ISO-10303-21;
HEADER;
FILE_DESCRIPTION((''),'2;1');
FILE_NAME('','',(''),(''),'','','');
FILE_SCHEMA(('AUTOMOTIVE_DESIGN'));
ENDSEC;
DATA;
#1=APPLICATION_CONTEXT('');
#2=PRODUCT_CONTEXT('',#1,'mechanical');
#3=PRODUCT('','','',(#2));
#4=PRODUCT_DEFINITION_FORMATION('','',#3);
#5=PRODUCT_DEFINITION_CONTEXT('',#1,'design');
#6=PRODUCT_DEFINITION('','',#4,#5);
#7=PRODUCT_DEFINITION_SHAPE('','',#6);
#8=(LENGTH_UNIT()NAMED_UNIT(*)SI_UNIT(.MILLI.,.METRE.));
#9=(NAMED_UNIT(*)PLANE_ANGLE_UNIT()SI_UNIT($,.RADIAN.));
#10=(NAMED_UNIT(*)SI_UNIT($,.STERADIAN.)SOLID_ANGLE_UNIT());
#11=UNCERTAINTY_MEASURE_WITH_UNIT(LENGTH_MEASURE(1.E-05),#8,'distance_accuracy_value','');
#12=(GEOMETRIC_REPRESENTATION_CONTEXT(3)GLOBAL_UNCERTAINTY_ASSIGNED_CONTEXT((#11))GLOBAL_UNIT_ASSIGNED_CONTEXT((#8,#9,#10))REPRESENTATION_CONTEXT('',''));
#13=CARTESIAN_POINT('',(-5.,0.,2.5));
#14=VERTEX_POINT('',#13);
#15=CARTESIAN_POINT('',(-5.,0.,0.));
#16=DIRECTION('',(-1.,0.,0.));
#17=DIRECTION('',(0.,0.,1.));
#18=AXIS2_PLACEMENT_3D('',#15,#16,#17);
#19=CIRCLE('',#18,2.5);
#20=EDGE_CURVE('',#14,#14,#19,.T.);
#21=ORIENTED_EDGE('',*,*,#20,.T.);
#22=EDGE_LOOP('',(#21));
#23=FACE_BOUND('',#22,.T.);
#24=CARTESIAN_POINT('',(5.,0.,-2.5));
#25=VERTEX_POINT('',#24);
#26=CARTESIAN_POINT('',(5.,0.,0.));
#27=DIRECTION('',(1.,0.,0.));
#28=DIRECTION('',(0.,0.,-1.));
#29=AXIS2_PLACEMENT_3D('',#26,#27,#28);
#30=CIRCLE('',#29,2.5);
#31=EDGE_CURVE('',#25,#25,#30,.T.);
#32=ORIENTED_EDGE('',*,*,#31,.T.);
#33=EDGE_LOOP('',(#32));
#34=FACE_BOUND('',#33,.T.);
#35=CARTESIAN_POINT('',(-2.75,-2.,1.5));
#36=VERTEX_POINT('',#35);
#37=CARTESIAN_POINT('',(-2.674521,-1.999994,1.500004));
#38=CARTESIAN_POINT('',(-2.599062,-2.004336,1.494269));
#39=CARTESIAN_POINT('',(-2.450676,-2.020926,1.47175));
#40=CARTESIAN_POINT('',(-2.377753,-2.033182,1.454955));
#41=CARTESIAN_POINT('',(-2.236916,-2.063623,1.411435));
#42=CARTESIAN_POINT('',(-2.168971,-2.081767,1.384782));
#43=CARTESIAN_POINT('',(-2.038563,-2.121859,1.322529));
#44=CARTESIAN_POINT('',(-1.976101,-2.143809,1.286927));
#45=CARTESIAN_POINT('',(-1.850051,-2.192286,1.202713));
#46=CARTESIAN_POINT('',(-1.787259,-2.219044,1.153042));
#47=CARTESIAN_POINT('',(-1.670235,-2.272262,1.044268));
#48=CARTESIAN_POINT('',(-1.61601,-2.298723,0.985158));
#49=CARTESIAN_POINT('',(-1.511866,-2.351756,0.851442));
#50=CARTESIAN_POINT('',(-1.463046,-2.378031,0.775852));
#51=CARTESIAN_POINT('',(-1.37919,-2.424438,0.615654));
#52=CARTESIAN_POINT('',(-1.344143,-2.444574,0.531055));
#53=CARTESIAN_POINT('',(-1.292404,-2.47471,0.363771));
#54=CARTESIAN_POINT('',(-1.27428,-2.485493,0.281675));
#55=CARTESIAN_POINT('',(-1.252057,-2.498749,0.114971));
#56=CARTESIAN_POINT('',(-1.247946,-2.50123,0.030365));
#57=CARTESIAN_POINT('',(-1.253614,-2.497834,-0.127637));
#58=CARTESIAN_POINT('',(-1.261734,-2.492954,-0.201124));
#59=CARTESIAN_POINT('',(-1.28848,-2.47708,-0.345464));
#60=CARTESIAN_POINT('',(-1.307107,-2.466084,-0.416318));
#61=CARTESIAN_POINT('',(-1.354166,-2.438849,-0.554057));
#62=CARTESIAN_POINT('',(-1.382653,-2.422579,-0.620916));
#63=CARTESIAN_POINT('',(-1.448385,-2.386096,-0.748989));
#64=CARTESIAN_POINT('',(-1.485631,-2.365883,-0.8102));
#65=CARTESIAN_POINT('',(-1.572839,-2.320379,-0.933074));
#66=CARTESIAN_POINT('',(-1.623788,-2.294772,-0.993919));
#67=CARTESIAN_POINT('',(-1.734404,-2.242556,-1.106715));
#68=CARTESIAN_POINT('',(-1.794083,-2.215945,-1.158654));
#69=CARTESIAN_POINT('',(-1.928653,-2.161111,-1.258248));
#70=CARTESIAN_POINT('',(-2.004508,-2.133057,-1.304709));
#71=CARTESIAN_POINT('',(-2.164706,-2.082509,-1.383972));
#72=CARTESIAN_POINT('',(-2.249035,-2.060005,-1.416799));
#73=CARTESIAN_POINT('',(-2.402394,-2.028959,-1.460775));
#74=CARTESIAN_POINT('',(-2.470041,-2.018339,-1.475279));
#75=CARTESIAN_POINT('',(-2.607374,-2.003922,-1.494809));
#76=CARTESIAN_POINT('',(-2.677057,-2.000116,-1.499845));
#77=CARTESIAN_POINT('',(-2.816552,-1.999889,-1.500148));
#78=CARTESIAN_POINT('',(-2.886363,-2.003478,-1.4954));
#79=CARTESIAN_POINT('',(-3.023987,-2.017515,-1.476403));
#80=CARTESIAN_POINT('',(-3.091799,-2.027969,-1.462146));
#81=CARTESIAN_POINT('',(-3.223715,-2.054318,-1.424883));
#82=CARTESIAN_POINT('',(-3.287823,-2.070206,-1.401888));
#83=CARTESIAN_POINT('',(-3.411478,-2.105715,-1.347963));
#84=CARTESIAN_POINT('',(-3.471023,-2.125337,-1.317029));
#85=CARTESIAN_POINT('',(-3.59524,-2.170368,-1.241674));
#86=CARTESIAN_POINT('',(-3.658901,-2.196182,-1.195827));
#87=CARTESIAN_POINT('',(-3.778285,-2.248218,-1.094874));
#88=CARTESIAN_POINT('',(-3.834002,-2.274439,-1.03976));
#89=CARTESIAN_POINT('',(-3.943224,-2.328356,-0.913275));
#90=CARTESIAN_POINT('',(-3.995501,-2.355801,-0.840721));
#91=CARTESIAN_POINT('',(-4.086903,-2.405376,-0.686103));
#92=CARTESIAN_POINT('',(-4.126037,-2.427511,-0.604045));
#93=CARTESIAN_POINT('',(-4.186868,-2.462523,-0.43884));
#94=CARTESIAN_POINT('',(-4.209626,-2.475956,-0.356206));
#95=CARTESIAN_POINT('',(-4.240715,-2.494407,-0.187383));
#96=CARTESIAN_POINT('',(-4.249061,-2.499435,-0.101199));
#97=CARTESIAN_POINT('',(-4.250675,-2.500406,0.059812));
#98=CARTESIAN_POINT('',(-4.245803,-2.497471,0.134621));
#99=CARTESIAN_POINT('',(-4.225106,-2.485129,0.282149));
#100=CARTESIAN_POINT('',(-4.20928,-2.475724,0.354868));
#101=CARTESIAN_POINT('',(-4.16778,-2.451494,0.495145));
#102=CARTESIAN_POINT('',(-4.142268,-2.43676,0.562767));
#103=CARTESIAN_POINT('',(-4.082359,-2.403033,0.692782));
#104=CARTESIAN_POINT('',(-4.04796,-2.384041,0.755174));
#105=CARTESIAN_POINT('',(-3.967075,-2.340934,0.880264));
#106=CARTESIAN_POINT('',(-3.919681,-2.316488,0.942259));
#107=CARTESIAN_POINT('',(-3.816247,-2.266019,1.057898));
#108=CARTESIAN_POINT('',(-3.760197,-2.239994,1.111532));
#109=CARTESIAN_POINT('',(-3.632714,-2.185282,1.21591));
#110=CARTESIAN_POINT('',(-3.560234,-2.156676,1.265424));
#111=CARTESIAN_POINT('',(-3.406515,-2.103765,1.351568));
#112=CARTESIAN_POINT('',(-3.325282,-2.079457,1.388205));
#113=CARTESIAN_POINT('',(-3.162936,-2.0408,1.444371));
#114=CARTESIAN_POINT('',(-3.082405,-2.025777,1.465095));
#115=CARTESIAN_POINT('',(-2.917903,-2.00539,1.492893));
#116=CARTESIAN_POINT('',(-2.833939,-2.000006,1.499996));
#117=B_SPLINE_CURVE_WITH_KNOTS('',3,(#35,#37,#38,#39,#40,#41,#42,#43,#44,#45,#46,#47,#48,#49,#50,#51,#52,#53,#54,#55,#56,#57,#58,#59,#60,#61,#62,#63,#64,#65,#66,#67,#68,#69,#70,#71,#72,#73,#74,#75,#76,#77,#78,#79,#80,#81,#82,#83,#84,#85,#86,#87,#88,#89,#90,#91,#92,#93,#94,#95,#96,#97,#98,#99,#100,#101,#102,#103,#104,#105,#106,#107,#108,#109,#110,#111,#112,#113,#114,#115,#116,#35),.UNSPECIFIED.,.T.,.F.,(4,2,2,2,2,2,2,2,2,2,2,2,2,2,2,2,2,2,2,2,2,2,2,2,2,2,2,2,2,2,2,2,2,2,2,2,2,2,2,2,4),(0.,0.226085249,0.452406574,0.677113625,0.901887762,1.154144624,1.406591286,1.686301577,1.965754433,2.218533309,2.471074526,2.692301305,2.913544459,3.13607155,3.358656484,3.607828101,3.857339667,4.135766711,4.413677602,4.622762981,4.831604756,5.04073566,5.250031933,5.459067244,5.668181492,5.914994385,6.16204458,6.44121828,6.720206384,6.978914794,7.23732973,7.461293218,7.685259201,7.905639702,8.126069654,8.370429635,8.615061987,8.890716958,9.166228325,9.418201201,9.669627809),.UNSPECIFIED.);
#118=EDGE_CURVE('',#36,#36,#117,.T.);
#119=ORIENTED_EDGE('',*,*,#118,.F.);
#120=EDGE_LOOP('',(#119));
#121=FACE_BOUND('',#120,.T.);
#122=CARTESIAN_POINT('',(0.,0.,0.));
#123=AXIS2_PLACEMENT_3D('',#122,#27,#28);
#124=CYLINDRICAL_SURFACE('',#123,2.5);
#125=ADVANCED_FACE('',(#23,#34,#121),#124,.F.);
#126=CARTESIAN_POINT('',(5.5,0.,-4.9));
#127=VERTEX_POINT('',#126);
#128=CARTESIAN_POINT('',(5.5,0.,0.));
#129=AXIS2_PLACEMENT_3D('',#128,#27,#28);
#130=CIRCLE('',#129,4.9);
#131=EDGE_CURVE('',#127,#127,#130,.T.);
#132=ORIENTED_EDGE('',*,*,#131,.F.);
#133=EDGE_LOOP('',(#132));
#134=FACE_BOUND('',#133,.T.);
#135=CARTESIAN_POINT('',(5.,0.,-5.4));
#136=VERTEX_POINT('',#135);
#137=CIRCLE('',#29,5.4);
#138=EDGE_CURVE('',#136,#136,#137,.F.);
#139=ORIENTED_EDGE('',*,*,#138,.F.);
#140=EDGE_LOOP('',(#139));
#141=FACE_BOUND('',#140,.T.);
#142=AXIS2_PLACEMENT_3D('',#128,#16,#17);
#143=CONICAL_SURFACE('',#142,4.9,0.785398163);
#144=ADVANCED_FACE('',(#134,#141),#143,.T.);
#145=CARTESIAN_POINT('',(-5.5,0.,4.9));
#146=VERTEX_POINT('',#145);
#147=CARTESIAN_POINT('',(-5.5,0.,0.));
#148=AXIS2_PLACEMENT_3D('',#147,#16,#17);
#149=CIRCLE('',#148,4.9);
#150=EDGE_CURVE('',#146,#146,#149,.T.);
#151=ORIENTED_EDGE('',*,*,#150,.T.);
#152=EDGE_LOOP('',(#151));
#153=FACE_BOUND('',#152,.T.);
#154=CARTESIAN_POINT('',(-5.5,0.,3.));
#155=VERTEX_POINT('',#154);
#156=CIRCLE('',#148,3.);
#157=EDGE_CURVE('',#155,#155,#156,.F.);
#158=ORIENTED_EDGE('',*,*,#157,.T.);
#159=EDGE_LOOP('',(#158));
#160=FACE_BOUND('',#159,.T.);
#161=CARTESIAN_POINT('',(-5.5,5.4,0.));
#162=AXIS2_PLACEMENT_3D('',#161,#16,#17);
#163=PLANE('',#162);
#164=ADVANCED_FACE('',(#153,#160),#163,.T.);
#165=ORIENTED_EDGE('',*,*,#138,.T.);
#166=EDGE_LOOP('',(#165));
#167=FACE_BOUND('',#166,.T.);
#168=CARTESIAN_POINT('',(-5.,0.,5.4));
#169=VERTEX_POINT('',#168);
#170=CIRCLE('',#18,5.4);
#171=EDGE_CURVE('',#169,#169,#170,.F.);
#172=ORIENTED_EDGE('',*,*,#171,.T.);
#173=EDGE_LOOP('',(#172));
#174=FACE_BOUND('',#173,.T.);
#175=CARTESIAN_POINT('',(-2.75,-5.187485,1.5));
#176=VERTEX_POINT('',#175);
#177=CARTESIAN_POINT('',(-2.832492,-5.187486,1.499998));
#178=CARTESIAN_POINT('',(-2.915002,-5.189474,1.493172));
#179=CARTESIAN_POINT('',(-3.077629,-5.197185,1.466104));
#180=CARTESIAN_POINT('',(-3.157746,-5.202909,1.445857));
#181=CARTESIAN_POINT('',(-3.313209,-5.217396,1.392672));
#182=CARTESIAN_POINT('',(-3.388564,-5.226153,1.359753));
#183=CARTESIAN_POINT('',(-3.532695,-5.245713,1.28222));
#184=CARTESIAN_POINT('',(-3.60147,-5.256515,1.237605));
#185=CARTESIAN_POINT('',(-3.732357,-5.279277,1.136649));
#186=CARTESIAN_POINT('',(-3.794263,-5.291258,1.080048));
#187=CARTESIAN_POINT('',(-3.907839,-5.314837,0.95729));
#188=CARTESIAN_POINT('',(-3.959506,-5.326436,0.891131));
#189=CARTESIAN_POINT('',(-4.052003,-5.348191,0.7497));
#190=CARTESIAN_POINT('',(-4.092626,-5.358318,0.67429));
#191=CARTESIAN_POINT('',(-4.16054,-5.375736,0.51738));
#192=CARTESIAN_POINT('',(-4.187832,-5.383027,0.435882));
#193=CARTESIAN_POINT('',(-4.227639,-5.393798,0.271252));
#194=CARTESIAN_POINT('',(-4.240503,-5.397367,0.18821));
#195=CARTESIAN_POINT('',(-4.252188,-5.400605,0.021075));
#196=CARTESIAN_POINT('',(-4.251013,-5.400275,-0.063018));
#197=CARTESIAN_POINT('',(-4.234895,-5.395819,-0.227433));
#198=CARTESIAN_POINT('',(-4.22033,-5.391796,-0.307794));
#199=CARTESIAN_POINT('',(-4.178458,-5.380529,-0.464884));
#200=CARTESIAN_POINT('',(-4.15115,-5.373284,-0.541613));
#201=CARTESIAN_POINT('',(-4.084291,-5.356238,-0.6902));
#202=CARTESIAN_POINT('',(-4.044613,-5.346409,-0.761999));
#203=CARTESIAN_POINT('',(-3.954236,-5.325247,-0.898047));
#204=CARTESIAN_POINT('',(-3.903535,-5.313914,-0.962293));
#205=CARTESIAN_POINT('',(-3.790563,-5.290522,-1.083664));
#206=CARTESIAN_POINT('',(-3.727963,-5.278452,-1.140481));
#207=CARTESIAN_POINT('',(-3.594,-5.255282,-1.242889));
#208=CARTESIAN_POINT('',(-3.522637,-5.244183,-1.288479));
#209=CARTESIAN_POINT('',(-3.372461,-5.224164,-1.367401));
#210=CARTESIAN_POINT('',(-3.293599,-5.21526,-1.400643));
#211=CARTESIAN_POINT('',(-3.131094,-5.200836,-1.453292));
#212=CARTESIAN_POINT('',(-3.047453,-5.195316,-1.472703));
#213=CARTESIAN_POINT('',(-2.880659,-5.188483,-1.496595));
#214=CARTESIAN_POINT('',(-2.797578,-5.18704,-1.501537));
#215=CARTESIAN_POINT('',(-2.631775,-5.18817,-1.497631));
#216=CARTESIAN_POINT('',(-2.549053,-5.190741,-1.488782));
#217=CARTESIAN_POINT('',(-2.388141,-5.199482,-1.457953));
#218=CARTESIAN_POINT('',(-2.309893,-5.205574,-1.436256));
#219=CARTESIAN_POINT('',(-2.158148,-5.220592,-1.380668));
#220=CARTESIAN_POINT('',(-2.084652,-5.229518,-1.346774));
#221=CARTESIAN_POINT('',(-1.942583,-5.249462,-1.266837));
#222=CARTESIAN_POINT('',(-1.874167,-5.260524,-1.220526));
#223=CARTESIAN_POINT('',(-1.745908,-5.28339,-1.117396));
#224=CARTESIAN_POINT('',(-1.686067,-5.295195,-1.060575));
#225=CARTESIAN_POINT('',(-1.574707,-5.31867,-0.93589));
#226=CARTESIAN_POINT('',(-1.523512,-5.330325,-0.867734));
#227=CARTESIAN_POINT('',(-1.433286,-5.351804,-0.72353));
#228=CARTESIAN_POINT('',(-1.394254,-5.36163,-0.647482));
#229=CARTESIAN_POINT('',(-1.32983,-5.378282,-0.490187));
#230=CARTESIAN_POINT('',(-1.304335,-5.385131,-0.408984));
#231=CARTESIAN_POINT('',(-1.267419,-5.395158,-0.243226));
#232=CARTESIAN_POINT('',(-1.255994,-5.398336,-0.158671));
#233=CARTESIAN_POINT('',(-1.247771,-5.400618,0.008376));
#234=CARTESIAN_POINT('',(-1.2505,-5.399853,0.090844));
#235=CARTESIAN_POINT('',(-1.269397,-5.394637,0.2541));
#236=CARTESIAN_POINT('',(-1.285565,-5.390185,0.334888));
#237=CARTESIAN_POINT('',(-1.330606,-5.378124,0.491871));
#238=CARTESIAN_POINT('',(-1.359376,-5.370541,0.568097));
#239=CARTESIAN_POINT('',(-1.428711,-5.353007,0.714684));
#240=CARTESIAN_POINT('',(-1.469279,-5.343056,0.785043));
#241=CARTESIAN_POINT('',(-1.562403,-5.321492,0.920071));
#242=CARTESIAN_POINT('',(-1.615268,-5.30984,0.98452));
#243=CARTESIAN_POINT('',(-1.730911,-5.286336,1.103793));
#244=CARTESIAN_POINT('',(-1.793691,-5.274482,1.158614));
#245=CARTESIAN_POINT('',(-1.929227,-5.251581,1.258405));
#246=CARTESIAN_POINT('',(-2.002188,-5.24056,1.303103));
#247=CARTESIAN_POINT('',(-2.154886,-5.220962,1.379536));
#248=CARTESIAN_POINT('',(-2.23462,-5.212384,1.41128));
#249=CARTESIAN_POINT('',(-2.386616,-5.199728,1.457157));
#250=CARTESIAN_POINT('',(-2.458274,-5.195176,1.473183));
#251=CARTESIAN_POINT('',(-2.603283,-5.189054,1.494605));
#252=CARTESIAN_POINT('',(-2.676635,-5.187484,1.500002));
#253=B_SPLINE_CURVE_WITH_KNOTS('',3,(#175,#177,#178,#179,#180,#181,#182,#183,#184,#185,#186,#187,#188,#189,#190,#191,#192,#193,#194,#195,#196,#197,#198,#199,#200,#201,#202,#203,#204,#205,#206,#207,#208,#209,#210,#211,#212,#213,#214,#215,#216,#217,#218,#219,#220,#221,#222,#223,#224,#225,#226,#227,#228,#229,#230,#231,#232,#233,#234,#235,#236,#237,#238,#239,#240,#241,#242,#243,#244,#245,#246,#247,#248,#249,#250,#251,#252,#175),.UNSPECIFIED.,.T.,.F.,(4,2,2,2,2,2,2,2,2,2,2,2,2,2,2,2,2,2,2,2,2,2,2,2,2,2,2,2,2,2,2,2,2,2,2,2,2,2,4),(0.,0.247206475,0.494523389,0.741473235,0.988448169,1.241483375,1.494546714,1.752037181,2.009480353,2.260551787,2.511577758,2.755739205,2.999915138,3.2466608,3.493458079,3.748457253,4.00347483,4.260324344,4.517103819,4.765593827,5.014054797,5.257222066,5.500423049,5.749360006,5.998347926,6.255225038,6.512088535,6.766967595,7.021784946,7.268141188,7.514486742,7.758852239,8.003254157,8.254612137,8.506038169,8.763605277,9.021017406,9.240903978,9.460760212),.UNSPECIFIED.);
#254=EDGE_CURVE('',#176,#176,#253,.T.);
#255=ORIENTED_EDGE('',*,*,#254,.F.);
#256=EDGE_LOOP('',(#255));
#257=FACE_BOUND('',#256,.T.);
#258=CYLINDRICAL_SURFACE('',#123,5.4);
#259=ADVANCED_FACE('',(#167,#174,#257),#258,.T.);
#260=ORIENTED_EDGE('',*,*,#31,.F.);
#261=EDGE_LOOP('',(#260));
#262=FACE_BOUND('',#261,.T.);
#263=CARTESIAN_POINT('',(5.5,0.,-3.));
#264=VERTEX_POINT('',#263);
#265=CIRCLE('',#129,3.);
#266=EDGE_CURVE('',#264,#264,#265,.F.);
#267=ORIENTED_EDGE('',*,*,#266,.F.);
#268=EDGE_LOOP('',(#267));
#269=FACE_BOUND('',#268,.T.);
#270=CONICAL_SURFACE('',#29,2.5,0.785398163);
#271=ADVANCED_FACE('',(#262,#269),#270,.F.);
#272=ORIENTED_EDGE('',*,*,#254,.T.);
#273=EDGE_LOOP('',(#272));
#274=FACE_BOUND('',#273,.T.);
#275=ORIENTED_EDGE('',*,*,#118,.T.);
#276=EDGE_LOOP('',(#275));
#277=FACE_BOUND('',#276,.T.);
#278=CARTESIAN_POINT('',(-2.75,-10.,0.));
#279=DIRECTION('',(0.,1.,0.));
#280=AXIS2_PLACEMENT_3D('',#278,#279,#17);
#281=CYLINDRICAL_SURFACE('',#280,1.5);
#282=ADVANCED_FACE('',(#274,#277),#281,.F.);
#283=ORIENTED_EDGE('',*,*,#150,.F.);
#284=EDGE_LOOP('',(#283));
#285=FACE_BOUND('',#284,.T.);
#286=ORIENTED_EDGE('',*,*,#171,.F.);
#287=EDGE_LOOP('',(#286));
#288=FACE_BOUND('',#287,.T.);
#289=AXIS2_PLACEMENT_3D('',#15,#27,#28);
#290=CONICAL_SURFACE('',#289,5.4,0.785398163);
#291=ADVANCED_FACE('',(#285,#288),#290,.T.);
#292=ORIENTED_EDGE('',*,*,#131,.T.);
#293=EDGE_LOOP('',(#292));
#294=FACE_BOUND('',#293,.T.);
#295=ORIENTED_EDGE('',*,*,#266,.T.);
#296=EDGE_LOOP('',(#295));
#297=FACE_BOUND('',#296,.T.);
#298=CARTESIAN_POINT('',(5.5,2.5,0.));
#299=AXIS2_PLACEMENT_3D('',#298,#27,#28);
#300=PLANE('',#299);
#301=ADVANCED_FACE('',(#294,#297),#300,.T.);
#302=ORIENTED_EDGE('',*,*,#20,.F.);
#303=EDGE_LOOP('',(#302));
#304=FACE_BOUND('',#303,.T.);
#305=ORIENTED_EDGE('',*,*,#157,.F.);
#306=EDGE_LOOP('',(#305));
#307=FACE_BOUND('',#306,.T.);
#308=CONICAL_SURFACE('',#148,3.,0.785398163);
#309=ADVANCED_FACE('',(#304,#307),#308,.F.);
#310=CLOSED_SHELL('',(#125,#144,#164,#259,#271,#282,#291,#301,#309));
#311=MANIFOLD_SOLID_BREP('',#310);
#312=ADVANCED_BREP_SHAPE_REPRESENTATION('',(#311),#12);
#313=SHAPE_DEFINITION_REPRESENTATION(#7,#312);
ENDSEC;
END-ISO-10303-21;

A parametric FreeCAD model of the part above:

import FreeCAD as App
import Part
import Sketcher

V = App.Vector


def edges_at(feature, points):
    """Names of the edges that pass closest to the given points."""
    edges = feature.Shape.Edges
    near = lambda p: min(range(len(edges)), key=lambda i: edges[i].distToShape(Part.Vertex(*p))[0])
    return sorted({f"Edge{near(p) + 1}" for p in points})

doc = App.newDocument("Part")
params = doc.addObject("Spreadsheet::Sheet", "Params")
for row, (alias, value) in enumerate([
    ("sketch1_width", "11 mm"),
    ("sketch1_height", "2.9 mm"),
    ("revolution_angle", "360 deg"),
    ("sketch2_diameter", "3 mm"),
    ("pocket1_length", "10 mm"),
    ("chamfer_size", "0.5 mm"),
], start=1):
    params.set(f"A{row}", alias)
    params.set(f"B{row}", "=" + value)
    params.setAlias(f"B{row}", alias)

body = doc.addObject("PartDesign::Body", "Body")

# Sketch on XY plane
sketch1 = body.newObject("Sketcher::SketchObject", "Sketch")
sketch1.AttachmentSupport = (doc.getObject("XY_Plane"), [""])
sketch1.MapMode = "FlatFace"
sketch1.addGeometry([
    Part.LineSegment(V(-5.5, 5.4, 0), V(-5.5, 2.5, 0)),
    Part.LineSegment(V(-5.5, 2.5, 0), V(5.5, 2.5, 0)),
    Part.LineSegment(V(5.5, 2.5, 0), V(5.5, 5.4, 0)),
    Part.LineSegment(V(5.5, 5.4, 0), V(-5.5, 5.4, 0)),
], False)
sketch1.addConstraint([
    Sketcher.Constraint("Coincident", 0, 2, 1, 1),
    Sketcher.Constraint("Coincident", 1, 2, 2, 1),
    Sketcher.Constraint("Coincident", 2, 2, 3, 1),
    Sketcher.Constraint("Coincident", 3, 2, 0, 1),
    Sketcher.Constraint("Vertical", 0),
    Sketcher.Constraint("Horizontal", 1),
    Sketcher.Constraint("Vertical", 2),
    Sketcher.Constraint("Horizontal", 3),
    Sketcher.Constraint("DistanceX", 1, 1, 1, 2, 11.0),
    Sketcher.Constraint("DistanceY", 0, 2, 0, 1, 2.9),
    Sketcher.Constraint("DistanceX", 0, 2, -1, 1, 5.5),
    Sketcher.Constraint("DistanceY", -1, 1, 0, 2, 2.5),
])
sketch1.setExpression("Constraints[8]", "Params.sketch1_width")
sketch1.setExpression("Constraints[9]", "Params.sketch1_height")
revolution = body.newObject("PartDesign::Revolution", "Revolution")
revolution.Profile = sketch1
revolution.ReferenceAxis = (sketch1, ["H_Axis"])
revolution.setExpression("Angle", "Params.revolution_angle")

# Sketch on XZ plane
sketch2 = body.newObject("Sketcher::SketchObject", "Sketch001")
sketch2.AttachmentSupport = (doc.getObject("XZ_Plane"), [""])
sketch2.MapMode = "FlatFace"
sketch2.addGeometry(Part.Circle(V(-2.8, 0, 0), V(0, 0, 1), 1.5), False)
sketch2.addConstraint([
    Sketcher.Constraint("PointOnObject", 0, 3, -1),
    Sketcher.Constraint("Diameter", 0, 3.0),
    Sketcher.Constraint("DistanceX", 0, 3, -1, 1, 2.75),
])
sketch2.setExpression("Constraints[1]", "Params.sketch2_diameter")
pocket1 = body.newObject("PartDesign::Pocket", "Pocket")
pocket1.Profile = sketch2
pocket1.setExpression("Length", "Params.pocket1_length")
pocket1.Reversed = True
doc.recompute()

chamfer = body.newObject("PartDesign::Chamfer", "Chamfer")
chamfer.Base = (pocket1, edges_at(pocket1, [
    (-5.5, -5.4, 0),
    (5.5, -5.4, 0),
    (5.5, -2.5, 0),
    (-5.5, -2.5, 0),
]))
chamfer.setExpression("Size", "Params.chamfer_size")

doc.recompute()
